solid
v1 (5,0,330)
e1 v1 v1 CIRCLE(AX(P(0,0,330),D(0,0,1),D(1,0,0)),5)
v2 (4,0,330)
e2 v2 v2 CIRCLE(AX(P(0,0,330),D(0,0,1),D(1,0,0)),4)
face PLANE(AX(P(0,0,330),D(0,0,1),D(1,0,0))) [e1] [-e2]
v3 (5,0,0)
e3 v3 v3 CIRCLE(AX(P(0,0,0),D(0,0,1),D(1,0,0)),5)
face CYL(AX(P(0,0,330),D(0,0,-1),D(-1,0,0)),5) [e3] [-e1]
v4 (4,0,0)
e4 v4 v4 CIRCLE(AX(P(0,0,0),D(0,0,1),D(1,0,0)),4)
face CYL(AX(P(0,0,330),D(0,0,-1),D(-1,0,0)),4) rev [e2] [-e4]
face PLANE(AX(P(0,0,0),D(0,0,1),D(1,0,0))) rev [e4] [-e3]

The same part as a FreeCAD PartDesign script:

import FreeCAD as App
import Part
import Sketcher
Q = App.Units.Quantity

doc = App.newDocument("Part")
body = doc.addObject("PartDesign::Body", "Body")

# Sketch on XY plane
sketch1 = body.newObject("Sketcher::SketchObject", "Sketch")
sketch1.AttachmentSupport = (doc.getObject("XY_Plane"), [""])
sketch1.MapMode = "FlatFace"
sketch1.addGeometry([
    Part.Circle(App.Vector(0, 0, 0), App.Vector(0, 0, 1), 5),
    Part.Circle(App.Vector(0, 0, 0), App.Vector(0, 0, 1), 4),
], False)
sketch1.addConstraint([
    Sketcher.Constraint("Coincident", 0, 3, -1, 1),
    Sketcher.Constraint("Coincident", 1, 3, -1, 1),
    Sketcher.Constraint("Diameter", 0, Q("10 mm")),
    Sketcher.Constraint("Diameter", 1, Q("8 mm")),
])
pad1 = body.newObject("PartDesign::Pad", "Pad")
pad1.Profile = sketch1
pad1.Length = 330

doc.recompute()
